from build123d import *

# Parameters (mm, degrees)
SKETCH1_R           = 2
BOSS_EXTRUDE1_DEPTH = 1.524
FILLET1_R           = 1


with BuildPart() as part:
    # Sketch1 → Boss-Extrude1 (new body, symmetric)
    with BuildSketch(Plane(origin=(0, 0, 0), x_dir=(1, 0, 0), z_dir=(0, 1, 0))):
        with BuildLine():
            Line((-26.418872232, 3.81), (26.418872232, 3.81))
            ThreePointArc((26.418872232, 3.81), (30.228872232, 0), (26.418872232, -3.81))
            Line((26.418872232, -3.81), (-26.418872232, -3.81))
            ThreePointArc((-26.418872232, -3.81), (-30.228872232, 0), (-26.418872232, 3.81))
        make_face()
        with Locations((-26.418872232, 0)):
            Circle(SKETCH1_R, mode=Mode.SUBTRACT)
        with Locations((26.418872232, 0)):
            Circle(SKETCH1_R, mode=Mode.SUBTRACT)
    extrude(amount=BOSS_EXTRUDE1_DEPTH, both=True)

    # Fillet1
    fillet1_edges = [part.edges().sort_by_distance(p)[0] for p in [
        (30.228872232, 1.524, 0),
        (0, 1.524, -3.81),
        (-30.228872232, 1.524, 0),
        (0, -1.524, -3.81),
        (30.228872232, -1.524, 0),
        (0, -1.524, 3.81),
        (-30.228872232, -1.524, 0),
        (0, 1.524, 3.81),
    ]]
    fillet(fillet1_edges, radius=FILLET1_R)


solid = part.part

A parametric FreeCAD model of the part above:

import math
import FreeCAD as App
import Part
import Sketcher


def edges_at(feature, points):
    """Names of the edges that pass closest to the given points."""
    edges = feature.Shape.Edges
    near = lambda p: min(range(len(edges)), key=lambda i: edges[i].distToShape(Part.Vertex(*p))[0])
    return sorted({f"Edge{near(p) + 1}" for p in points})

doc = App.newDocument("Part")
body = doc.addObject("PartDesign::Body", "Body")

sketch1 = body.newObject("Sketcher::SketchObject", "Sketch")
sketch1.AttachmentSupport = (doc.getObject("XZ_Plane"), [""])
sketch1.MapMode = "FlatFace"
sketch1.addGeometry([
    Part.LineSegment(App.Vector(26.4, -3.8, 0), App.Vector(-26.4, -3.8, 0)),
    Part.ArcOfCircle(Part.Circle(App.Vector(-26.4, 0, 0), App.Vector(0, 0, 1), 3.8), math.radians(90), math.radians(270)),
    Part.LineSegment(App.Vector(-26.4, 3.8, 0), App.Vector(26.4, 3.8, 0)),
    Part.ArcOfCircle(Part.Circle(App.Vector(26.4, 0, 0), App.Vector(0, 0, 1), 3.8), math.radians(-90), math.radians(90)),
    Part.Circle(App.Vector(26.4, 0, 0), App.Vector(0, 0, 1), 2),
    Part.Circle(App.Vector(-26.4, 0, 0), App.Vector(0, 0, 1), 2),
], False)
sketch1.addConstraint([
    Sketcher.Constraint("Tangent", 0, 2, 1, 2),
    Sketcher.Constraint("Tangent", 1, 1, 2, 1),
    Sketcher.Constraint("Tangent", 2, 2, 3, 2),
    Sketcher.Constraint("Tangent", 3, 1, 0, 1),
    Sketcher.Constraint("Horizontal", 0),
    Sketcher.Constraint("Horizontal", 2),
    Sketcher.Constraint("Coincident", 4, 3, 3, 3),
    Sketcher.Constraint("Coincident", 5, 3, 1, 3),
    Sketcher.Constraint("Equal", 4, 5),
    Sketcher.Constraint("Symmetric", 1, 3, 3, 3, -1, 1),
    Sketcher.Constraint("Diameter", 4, 4.0),
    Sketcher.Constraint("Radius", 1, 3.81),
    Sketcher.Constraint("DistanceX", 0, 2, 0, 1, 52.837744),
])
pad1 = body.newObject("PartDesign::Pad", "Pad")
pad1.Profile = sketch1
pad1.Length = 3.048
pad1.Midplane = True
doc.recompute()

fillet = body.newObject("PartDesign::Fillet", "Fillet")
fillet.Base = (pad1, edges_at(pad1, [
    (30.229, 1.524, 0),
    (0, 1.524, -3.81),
    (-30.229, 1.524, 0),
    (0, -1.524, -3.81),
    (30.229, -1.524, 0),
    (0, -1.524, 3.81),
    (-30.229, -1.524, 0),
    (0, 1.524, 3.81),
]))
fillet.Radius = 1

doc.recompute()
